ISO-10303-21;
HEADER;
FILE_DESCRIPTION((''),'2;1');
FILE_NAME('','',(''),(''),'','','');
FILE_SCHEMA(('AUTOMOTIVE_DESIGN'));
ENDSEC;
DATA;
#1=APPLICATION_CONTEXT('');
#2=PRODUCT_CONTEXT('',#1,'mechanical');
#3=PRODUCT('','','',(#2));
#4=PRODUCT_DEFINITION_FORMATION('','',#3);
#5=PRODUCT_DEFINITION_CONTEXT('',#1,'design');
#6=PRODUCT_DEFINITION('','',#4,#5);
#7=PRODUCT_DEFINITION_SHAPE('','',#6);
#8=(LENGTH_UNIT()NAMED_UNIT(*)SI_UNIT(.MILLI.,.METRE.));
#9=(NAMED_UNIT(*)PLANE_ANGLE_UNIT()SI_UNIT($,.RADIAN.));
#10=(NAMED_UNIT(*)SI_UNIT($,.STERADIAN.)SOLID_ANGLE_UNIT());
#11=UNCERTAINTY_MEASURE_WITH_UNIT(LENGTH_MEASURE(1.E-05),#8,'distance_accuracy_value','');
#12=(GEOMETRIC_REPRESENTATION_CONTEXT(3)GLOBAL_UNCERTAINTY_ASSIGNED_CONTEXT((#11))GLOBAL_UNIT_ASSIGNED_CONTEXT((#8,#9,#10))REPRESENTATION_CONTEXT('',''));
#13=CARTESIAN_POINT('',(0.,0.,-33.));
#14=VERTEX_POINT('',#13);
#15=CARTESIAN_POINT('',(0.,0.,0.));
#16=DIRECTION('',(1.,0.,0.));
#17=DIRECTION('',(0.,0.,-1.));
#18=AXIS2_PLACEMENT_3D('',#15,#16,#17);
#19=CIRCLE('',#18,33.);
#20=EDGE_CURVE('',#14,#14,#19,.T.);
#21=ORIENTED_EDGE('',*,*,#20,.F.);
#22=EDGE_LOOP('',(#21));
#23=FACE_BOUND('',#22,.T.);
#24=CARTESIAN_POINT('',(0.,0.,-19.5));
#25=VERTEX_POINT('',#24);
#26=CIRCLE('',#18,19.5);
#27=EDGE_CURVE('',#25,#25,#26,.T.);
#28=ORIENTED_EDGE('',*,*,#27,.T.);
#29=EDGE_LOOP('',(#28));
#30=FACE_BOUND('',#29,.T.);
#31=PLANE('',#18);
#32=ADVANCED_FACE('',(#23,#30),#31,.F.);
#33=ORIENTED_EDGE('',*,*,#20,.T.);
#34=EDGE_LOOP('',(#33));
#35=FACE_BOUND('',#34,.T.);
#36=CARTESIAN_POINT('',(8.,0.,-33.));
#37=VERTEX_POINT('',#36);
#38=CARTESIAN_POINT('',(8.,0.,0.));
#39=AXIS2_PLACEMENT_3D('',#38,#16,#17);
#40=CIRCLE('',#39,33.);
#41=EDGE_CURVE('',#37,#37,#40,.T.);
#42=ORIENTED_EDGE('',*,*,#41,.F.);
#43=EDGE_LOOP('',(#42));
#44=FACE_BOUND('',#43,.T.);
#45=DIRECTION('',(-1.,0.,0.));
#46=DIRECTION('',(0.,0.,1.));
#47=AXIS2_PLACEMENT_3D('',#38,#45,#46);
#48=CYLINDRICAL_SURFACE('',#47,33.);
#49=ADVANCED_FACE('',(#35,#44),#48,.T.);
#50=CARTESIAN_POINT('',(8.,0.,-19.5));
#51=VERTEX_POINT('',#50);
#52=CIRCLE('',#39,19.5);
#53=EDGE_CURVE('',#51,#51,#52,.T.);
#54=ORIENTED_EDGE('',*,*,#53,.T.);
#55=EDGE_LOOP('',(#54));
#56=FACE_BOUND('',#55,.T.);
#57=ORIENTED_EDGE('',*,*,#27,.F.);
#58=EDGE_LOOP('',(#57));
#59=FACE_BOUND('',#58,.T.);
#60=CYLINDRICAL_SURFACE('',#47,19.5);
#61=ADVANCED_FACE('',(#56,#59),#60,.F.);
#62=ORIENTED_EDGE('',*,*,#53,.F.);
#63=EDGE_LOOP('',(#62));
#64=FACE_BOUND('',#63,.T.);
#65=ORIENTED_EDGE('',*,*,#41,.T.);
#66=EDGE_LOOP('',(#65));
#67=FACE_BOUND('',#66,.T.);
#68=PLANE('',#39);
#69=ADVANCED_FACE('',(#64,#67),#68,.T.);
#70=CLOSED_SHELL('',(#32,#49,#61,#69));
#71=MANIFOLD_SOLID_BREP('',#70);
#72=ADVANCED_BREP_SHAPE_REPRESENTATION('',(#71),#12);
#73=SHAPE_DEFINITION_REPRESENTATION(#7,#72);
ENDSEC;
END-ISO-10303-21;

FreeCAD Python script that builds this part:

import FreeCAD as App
import Part
import Sketcher

doc = App.newDocument("Part")
body = doc.addObject("PartDesign::Body", "Body")

sketch1 = doc.addObject("Sketcher::SketchObject", "Sketch")
body.addObject(sketch1)
sketch1.AttachmentSupport = (doc.YZ_Plane, [""])
sketch1.MapMode = "FlatFace"
sketch1.addGeometry([
    Part.Circle(App.Vector(0, 0, 0), App.Vector(0, 0, 1), 33),
    Part.Circle(App.Vector(0, 0, 0), App.Vector(0, 0, 1), 19.5),
], False)
sketch1.addConstraint([
    Sketcher.Constraint("Coincident", 0, 3, -1, 1),
    Sketcher.Constraint("Coincident", 1, 3, -1, 1),
    Sketcher.Constraint("Diameter", 0, 66.0),
    Sketcher.Constraint("Diameter", 1, 39.0),
])
pad1 = doc.addObject("PartDesign::Pad", "Pad")
body.addObject(pad1)
pad1.Profile = sketch1
pad1.Length = 8

doc.recompute()
